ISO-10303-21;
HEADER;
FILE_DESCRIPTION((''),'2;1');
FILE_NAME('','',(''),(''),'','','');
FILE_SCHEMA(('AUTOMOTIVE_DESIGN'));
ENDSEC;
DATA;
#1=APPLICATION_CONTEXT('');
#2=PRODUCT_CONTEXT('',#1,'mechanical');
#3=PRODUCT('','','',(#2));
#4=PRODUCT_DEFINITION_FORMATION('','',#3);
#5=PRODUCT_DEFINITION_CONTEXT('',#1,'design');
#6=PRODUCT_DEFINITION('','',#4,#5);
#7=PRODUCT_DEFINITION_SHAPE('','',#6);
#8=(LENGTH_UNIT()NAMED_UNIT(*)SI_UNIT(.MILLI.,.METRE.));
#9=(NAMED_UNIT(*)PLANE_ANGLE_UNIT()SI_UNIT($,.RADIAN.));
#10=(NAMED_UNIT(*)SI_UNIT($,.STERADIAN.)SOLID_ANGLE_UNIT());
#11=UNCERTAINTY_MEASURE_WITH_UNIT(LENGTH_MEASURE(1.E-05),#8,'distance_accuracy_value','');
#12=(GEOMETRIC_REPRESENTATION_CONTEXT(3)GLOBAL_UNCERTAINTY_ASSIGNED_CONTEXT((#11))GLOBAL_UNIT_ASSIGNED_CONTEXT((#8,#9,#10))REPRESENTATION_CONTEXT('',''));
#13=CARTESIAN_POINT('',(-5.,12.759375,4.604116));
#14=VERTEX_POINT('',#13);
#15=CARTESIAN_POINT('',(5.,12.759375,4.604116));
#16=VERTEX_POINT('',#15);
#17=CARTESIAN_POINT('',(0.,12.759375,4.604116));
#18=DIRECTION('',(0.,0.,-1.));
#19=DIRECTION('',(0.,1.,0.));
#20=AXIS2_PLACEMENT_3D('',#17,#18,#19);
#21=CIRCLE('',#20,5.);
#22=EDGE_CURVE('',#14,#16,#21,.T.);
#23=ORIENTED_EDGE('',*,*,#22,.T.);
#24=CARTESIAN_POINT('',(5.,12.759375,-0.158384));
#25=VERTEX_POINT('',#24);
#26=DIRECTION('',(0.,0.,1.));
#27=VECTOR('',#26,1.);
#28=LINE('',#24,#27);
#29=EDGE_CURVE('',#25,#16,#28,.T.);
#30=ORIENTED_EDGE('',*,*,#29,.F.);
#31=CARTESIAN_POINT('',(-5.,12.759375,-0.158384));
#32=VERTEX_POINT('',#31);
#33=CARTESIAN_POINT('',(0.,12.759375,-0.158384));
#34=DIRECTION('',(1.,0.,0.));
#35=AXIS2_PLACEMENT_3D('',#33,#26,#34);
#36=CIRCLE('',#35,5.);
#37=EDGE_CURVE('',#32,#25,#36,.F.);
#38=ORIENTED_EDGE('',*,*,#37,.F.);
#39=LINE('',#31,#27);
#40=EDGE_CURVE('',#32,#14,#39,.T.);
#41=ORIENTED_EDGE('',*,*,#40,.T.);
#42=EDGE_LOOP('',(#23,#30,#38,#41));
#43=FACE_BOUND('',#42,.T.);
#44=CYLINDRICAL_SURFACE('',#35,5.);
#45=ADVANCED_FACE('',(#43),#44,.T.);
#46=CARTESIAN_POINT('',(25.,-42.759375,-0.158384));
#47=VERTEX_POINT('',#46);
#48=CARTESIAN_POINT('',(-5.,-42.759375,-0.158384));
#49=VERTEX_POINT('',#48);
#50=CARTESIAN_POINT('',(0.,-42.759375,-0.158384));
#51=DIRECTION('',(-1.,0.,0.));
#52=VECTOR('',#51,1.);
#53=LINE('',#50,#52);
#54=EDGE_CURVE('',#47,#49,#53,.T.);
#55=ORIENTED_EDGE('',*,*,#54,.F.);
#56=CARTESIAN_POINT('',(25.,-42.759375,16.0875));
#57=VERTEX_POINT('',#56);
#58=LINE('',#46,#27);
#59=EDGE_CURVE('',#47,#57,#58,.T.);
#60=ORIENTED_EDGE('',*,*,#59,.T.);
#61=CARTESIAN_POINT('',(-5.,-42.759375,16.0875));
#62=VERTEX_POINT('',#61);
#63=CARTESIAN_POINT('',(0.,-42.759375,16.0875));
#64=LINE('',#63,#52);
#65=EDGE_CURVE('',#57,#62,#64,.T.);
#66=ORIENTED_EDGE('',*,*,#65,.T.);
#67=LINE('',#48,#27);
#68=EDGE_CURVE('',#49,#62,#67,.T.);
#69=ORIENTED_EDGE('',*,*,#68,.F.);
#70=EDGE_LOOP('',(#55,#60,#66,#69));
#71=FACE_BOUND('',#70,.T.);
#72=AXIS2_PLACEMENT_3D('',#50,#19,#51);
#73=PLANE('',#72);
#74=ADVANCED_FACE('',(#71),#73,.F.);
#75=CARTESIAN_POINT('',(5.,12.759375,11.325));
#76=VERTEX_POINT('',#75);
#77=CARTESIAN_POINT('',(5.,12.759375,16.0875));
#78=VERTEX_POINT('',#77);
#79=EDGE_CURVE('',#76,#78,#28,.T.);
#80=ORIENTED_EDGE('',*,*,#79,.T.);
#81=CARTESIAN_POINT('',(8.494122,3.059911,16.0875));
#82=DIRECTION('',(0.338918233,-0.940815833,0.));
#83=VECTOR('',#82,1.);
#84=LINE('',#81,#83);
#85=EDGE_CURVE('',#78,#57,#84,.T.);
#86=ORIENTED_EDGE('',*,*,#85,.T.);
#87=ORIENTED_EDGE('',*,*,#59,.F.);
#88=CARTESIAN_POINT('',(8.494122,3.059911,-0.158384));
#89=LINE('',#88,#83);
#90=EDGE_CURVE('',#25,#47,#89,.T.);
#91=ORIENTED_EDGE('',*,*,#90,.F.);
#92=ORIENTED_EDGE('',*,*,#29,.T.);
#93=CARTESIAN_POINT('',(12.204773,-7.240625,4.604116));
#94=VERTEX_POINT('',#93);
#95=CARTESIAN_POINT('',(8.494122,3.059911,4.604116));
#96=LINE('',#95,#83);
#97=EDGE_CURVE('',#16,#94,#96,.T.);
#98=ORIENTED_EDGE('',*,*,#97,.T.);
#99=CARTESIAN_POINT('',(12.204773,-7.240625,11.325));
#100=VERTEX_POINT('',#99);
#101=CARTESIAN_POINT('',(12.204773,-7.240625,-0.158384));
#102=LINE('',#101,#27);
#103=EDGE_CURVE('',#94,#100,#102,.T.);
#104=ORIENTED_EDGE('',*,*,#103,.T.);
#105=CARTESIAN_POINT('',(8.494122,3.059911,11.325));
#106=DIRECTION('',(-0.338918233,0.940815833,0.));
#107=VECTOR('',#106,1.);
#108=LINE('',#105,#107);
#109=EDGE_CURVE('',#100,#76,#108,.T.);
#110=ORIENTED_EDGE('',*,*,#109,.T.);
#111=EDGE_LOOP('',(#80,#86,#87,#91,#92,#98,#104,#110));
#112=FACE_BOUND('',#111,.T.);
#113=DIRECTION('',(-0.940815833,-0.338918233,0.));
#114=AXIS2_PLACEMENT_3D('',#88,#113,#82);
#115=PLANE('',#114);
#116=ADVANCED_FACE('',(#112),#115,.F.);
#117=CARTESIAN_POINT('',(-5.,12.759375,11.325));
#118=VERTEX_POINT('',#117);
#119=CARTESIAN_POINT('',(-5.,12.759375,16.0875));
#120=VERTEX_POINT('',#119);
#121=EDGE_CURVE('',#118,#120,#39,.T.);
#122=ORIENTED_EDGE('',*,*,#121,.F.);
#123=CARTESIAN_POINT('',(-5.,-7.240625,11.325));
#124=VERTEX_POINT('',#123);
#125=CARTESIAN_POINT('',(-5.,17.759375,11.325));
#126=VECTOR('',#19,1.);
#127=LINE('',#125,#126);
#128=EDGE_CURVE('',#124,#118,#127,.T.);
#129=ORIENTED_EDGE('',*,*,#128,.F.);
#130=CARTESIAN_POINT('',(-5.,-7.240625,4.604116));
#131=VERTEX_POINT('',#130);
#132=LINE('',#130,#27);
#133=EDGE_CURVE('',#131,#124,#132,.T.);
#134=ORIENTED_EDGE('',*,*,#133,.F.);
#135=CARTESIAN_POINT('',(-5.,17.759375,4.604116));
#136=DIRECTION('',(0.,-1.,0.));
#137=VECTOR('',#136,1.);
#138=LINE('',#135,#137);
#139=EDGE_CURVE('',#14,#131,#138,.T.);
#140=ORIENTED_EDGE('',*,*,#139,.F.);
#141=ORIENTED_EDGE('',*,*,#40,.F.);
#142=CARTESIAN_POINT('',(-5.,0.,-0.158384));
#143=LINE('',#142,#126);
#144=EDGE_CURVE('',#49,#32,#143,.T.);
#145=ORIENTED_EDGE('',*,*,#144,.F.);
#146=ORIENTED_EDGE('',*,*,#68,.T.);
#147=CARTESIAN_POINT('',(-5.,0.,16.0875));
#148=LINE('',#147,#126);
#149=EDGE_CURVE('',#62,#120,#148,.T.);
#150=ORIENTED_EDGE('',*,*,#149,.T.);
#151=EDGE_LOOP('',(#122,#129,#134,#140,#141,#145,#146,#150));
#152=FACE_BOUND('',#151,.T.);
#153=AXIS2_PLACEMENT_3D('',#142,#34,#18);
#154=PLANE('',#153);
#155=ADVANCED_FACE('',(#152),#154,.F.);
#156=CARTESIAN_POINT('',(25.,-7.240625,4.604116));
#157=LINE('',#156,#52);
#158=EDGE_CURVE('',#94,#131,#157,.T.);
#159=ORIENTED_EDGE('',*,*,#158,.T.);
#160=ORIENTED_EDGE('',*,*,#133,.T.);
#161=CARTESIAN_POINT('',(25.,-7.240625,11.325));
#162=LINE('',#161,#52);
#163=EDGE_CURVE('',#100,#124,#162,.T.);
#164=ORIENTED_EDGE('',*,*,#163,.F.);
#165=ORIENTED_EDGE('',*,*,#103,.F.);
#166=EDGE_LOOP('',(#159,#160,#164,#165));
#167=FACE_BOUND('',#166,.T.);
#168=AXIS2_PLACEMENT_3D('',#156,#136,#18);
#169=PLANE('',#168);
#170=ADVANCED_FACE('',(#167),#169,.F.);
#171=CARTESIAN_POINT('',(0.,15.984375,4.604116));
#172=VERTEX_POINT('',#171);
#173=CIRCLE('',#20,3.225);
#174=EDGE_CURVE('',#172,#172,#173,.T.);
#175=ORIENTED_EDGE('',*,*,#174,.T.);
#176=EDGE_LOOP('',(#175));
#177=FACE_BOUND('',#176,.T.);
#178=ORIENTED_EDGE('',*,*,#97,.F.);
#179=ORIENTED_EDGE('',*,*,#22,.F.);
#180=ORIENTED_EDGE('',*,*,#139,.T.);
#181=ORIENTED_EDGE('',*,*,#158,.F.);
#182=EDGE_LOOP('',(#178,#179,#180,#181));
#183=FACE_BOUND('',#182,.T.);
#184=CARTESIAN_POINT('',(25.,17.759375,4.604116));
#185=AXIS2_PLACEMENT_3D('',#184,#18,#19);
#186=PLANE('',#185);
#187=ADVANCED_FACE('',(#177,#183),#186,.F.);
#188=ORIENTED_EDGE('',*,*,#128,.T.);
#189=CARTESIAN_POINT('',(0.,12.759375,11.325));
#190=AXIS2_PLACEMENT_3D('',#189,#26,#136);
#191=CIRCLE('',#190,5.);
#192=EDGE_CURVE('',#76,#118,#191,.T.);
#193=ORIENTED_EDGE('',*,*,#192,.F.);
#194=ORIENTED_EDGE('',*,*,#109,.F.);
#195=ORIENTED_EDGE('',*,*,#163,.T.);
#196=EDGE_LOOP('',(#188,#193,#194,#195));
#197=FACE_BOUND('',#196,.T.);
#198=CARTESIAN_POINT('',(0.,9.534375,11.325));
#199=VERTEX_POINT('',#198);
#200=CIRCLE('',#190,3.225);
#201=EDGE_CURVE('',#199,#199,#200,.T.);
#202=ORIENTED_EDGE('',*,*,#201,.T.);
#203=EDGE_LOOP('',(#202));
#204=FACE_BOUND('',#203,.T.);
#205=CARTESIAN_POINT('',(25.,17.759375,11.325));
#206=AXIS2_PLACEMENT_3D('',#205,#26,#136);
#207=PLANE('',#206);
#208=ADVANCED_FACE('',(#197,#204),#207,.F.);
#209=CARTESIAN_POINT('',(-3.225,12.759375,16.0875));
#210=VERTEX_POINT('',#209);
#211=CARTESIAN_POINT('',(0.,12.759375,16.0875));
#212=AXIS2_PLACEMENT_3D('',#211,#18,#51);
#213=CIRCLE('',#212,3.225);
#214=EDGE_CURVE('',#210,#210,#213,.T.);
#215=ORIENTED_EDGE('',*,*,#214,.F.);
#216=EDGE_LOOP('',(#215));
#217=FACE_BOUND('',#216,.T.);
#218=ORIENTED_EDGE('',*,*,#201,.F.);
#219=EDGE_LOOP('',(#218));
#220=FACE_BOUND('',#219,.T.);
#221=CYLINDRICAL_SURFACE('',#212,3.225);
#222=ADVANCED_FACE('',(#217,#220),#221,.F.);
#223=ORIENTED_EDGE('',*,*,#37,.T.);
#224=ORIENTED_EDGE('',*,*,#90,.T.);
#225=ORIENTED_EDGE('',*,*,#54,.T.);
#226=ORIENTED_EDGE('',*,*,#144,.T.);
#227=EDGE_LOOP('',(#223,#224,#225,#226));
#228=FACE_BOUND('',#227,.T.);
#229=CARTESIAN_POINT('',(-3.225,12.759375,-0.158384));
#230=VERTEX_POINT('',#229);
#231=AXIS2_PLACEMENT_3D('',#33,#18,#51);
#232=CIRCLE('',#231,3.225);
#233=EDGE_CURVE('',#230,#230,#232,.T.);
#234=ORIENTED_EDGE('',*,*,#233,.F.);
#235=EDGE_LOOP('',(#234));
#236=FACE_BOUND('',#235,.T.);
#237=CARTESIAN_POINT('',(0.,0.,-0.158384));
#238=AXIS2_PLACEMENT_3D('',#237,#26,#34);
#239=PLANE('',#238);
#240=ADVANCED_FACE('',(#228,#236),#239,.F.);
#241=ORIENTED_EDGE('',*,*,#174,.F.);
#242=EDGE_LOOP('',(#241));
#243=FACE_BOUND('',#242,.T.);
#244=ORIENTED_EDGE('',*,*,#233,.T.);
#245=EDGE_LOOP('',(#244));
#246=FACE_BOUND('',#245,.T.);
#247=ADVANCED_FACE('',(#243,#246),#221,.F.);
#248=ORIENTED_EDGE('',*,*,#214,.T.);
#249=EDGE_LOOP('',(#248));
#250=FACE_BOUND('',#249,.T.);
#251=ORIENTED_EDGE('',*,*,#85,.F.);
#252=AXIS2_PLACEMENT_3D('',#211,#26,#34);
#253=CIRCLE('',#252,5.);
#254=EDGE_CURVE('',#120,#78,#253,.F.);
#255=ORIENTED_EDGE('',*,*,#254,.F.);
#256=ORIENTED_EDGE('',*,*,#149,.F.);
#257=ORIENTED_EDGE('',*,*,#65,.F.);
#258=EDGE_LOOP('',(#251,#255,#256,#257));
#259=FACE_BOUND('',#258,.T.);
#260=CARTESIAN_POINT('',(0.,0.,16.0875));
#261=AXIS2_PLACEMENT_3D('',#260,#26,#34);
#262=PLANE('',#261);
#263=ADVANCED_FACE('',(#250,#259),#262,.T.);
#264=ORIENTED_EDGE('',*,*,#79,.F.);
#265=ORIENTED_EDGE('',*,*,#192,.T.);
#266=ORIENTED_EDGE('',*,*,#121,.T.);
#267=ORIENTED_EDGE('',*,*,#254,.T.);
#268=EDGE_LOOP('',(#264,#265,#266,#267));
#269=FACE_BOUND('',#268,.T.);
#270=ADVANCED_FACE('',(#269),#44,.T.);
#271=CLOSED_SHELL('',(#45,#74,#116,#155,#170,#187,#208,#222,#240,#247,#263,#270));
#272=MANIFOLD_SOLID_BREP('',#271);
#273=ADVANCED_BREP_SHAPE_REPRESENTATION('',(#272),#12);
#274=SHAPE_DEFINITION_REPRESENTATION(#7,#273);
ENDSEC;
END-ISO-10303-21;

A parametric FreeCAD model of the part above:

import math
import FreeCAD as App
import Part
import Sketcher
from FreeCAD import Vector
Q = App.Units.Quantity


def add_polygon(sketch, points):
    """Adds a closed chain of lines whose ends are joined by coincident constraints."""
    first, n = sketch.GeometryCount, len(points)
    for a, b in zip(points, points[1:] + points[:1]):
        sketch.addGeometry(Part.LineSegment(App.Vector(*a, 0), App.Vector(*b, 0)), False)
    for i in range(n):
        sketch.addConstraint(Sketcher.Constraint("Coincident", first + i, 2, first + (i + 1) % n, 1))

doc = App.newDocument("Part")
body = doc.addObject("PartDesign::Body", "Body")

sketch1 = body.newObject("Sketcher::SketchObject", "Sketch")
sketch1.AttachmentSupport = (doc.getObject("XY_Plane"), [""])
sketch1.MapMode = "FlatFace"
sketch1.addGeometry([
    Part.ArcOfCircle(Part.Circle(Vector(0, 12.759375, 0), Vector(0, 0, 1), 5), math.radians(0), math.radians(180)),
    Part.LineSegment(Vector(-5, 12.759375, 0), Vector(-5, -42.759375, 0)),
    Part.LineSegment(Vector(-5, -42.759375, 0), Vector(25, -42.759375, 0)),
    Part.LineSegment(Vector(25, -42.759375, 0), Vector(5, 12.759375, 0)),
], False)
sketch1.addConstraint([
    Sketcher.Constraint("Tangent", 0, 2, 1, 1),
    Sketcher.Constraint("Coincident", 1, 2, 2, 1),
    Sketcher.Constraint("Coincident", 2, 2, 3, 1),
    Sketcher.Constraint("Coincident", 3, 2, 0, 1),
    Sketcher.Constraint("Vertical", 1),
    Sketcher.Constraint("Horizontal", 2),
    Sketcher.Constraint("Symmetric", 0, 2, 3, 2, -2),
    Sketcher.Constraint("Radius", 0, Q("5 mm")),
    Sketcher.Constraint("DistanceX", 2, 1, 2, 2, Q("30 mm")),
    Sketcher.Constraint("DistanceY", 1, 2, 1, 1, Q("55.51875 mm")),
    Sketcher.Constraint("DistanceY", -1, 1, 0, 3, Q("12.759375 mm")),
])
pad1 = body.newObject("PartDesign::Pad", "Pad")
pad1.Profile = sketch1
pad1.Type = "TwoLengths"
pad1.Length = 16.0875
pad1.Length2 = 0.158384

sketch2 = body.newObject("Sketcher::SketchObject", "Sketch001")
sketch2.AttachmentSupport = (doc.getObject("YZ_Plane"), [""])
sketch2.MapMode = "FlatFace"
sketch2.AttachmentOffset = App.Placement(Vector(0, 0, -5), App.Rotation())
add_polygon(sketch2, [(17.759375, 4.604116), (-7.240625, 4.604116), (-7.240625, 11.325), (17.759375, 11.325)])
sketch2.addConstraint([
    Sketcher.Constraint("Horizontal", 0),
    Sketcher.Constraint("Vertical", 1),
    Sketcher.Constraint("Horizontal", 2),
    Sketcher.Constraint("Vertical", 3),
    Sketcher.Constraint("DistanceX", 0, 2, 0, 1, Q("25 mm")),
    Sketcher.Constraint("DistanceY", -1, 1, 1, 2, Q("11.325 mm")),
    Sketcher.Constraint("DistanceY", 1, 1, 1, 2, Q("6.720884 mm")),
    Sketcher.Constraint("DistanceX", 0, 2, -1, 1, Q("7.240625 mm")),
])
pocket1 = body.newObject("PartDesign::Pocket", "Pocket")
pocket1.Profile = sketch2
pocket1.Type = "ThroughAll"
pocket1.Reversed = True

sketch3 = body.newObject("Sketcher::SketchObject", "Sketch002")
sketch3.AttachmentSupport = (doc.getObject("XY_Plane"), [""])
sketch3.MapMode = "FlatFace"
sketch3.AttachmentOffset = App.Placement(Vector(0, 0, -0.158384), App.Rotation())
sketch3.addGeometry(Part.Circle(Vector(0, 12.759375, 0), Vector(0, 0, 1), 3.225), False)
sketch3.addConstraint([
    Sketcher.Constraint("PointOnObject", 0, 3, -2),
    Sketcher.Constraint("Diameter", 0, Q("6.45 mm")),
    Sketcher.Constraint("DistanceY", -1, 1, 0, 3, Q("12.759375 mm")),
])
pocket2 = body.newObject("PartDesign::Pocket", "Pocket001")
pocket2.Profile = sketch3
pocket2.Type = "ThroughAll"
pocket2.Reversed = True

doc.recompute()
